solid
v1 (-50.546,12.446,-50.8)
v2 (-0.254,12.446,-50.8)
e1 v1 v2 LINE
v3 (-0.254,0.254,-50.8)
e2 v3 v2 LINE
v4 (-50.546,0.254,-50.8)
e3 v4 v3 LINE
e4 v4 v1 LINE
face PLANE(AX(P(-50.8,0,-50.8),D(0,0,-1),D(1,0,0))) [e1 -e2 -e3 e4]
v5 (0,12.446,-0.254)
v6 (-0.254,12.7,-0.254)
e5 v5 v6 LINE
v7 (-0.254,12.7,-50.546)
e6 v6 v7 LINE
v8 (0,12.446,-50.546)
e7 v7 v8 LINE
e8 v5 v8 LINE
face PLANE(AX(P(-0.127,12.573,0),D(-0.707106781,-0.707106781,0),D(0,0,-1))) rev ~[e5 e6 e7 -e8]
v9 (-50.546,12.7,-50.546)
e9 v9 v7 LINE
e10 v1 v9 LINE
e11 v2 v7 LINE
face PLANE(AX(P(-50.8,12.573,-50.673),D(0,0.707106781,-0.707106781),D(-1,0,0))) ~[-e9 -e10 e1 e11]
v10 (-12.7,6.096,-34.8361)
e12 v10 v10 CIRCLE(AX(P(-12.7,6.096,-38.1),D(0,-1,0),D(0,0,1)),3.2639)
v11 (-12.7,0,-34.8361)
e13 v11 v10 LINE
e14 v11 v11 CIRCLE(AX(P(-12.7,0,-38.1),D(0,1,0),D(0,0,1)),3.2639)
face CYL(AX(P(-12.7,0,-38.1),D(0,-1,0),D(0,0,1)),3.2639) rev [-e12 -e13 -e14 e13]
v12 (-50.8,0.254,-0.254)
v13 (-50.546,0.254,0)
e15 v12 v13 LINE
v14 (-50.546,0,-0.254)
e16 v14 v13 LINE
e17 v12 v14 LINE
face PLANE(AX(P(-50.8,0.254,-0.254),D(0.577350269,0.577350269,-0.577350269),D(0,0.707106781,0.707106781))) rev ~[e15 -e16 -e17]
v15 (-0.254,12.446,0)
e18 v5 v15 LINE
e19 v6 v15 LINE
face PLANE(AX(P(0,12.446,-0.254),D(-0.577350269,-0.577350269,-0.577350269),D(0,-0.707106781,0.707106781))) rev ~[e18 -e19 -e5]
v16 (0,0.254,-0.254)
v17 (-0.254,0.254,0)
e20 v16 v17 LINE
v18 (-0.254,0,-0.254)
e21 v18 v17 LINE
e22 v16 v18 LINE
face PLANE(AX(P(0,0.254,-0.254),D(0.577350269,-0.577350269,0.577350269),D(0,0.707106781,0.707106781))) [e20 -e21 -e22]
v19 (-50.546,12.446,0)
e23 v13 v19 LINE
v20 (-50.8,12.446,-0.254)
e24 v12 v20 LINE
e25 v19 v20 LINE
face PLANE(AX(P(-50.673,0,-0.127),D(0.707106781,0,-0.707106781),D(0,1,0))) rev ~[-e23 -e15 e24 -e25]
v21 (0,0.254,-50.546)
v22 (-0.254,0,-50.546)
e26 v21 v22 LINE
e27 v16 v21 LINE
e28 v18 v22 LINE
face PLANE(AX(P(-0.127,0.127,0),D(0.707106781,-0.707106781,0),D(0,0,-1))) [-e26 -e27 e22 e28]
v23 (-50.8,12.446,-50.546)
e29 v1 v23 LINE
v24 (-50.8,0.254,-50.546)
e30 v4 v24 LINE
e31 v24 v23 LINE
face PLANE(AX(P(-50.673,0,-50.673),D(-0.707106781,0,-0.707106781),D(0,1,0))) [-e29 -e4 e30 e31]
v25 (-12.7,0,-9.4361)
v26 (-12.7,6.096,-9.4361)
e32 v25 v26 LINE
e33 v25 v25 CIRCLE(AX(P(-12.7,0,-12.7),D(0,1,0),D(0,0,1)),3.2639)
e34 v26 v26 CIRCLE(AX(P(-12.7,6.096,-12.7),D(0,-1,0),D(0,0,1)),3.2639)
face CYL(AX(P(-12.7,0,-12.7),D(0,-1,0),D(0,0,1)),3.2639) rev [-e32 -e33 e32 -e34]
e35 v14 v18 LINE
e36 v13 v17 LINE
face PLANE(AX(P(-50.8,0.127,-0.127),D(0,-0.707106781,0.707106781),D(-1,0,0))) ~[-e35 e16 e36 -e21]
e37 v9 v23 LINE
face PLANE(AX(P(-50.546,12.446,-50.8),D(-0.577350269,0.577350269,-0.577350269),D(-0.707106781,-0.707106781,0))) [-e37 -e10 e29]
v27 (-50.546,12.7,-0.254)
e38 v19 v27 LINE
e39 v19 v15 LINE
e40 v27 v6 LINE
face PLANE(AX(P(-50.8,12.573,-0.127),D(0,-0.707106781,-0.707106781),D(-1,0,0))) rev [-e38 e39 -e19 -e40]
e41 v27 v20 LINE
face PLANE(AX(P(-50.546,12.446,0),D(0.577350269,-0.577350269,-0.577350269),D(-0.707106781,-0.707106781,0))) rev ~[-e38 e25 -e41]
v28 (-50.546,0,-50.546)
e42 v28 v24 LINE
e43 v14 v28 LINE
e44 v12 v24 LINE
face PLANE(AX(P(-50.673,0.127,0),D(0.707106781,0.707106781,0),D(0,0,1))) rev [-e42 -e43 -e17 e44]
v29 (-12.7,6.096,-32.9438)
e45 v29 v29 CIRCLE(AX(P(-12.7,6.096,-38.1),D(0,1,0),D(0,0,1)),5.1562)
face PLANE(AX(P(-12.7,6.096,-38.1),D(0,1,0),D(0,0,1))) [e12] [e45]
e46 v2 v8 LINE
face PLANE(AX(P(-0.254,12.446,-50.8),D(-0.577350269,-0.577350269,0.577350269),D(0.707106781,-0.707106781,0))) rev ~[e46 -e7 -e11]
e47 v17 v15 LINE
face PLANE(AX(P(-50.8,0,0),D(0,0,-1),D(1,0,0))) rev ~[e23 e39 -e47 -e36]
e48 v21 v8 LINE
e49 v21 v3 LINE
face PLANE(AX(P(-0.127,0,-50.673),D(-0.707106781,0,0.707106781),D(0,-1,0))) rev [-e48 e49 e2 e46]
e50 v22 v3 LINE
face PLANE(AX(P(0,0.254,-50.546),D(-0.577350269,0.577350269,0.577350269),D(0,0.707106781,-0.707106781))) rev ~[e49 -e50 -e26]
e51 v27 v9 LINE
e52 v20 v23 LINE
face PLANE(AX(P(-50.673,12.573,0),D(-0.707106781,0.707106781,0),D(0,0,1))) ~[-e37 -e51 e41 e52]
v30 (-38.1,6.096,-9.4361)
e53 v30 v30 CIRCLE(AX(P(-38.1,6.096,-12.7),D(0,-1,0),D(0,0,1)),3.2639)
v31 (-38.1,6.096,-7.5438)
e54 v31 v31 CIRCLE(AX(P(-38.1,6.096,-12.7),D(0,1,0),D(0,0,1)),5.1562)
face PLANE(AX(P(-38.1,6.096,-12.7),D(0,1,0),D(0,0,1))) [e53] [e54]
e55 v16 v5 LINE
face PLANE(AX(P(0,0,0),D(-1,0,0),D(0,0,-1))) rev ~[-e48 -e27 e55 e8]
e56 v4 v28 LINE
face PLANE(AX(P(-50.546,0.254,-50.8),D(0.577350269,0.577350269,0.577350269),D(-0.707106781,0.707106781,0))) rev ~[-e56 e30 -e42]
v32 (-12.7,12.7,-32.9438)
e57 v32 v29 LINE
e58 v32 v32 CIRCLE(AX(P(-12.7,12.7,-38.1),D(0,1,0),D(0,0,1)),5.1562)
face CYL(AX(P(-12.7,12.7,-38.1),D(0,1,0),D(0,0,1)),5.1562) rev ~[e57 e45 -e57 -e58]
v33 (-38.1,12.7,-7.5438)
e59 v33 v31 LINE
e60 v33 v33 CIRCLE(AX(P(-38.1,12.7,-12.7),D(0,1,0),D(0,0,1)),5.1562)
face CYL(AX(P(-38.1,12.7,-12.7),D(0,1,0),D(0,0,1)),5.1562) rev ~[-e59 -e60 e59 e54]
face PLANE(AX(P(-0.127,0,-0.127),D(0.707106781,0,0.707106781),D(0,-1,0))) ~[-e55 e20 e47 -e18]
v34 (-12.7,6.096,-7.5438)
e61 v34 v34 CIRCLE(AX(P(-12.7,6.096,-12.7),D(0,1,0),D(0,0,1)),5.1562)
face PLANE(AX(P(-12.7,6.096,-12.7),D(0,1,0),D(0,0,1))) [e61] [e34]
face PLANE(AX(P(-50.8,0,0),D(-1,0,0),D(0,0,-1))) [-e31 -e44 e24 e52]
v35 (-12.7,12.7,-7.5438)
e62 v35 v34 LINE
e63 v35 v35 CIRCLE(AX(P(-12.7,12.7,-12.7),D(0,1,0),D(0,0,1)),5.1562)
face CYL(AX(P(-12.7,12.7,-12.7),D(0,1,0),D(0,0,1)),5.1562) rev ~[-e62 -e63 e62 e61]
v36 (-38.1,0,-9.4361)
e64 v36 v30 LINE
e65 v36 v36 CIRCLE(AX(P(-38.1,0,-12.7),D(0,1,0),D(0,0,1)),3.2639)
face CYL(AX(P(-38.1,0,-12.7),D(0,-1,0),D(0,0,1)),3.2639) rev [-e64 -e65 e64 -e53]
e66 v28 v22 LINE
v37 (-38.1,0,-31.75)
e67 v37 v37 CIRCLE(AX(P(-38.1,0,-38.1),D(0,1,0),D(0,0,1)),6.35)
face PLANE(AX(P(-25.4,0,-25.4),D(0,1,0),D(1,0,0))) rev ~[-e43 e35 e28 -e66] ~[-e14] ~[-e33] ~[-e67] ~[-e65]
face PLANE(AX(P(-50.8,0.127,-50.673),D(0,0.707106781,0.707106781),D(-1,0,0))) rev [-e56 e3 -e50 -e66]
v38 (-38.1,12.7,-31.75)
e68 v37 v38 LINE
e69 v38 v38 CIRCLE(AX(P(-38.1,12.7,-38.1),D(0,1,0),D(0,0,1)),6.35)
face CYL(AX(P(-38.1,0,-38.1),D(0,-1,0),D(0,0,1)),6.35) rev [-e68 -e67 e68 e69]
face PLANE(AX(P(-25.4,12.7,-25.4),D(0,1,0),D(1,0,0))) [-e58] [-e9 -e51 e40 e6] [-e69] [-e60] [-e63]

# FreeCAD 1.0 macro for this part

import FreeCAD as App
import Part
import Sketcher
Q = App.Units.Quantity


def edges_at(feature, points):
    """Names of the edges that pass closest to the given points."""
    edges = feature.Shape.Edges
    near = lambda p: min(range(len(edges)), key=lambda i: edges[i].distToShape(Part.Vertex(*p))[0])
    return sorted({f"Edge{near(p) + 1}" for p in points})


def add_polygon(sketch, points):
    """Adds a closed chain of lines whose ends are joined by coincident constraints."""
    first, n = sketch.GeometryCount, len(points)
    for a, b in zip(points, points[1:] + points[:1]):
        sketch.addGeometry(Part.LineSegment(App.Vector(*a, 0), App.Vector(*b, 0)), False)
    for i in range(n):
        sketch.addConstraint(Sketcher.Constraint("Coincident", first + i, 2, first + (i + 1) % n, 1))

doc = App.newDocument("Part")
body = doc.addObject("PartDesign::Body", "Body")

sketch1 = body.newObject("Sketcher::SketchObject", "Sketch")
sketch1.AttachmentSupport = (doc.getObject("XZ_Plane"), [""])
sketch1.MapMode = "FlatFace"
add_polygon(sketch1, [(-50.8, -50.8), (-50.8, 0), (0, 0), (0, -50.8)])
sketch1.addGeometry(Part.Circle(App.Vector(-38.1, -12.7, 0), App.Vector(0, 0, 1), 3.3), False)
sketch1.addGeometry(Part.Circle(App.Vector(-12.7, -12.7, 0), App.Vector(0, 0, 1), 3.3), False)
sketch1.addGeometry(Part.Circle(App.Vector(-38.1, -38.1, 0), App.Vector(0, 0, 1), 6.3), False)
sketch1.addGeometry(Part.Circle(App.Vector(-12.7, -38.1, 0), App.Vector(0, 0, 1), 3.3), False)
sketch1.addConstraint([
    Sketcher.Constraint("Vertical", 0),
    Sketcher.Constraint("Horizontal", 1),
    Sketcher.Constraint("Vertical", 2),
    Sketcher.Constraint("Horizontal", 3),
    Sketcher.Constraint("Coincident", 1, 2, -1, 1),
    Sketcher.Constraint("Equal", 4, 5),
    Sketcher.Constraint("Equal", 5, 7),
    Sketcher.Constraint("Horizontal", 4, 3, 5, 3),
    Sketcher.Constraint("Horizontal", 6, 3, 7, 3),
    Sketcher.Constraint("Vertical", 4, 3, 6, 3),
    Sketcher.Constraint("Vertical", 5, 3, 7, 3),
    Sketcher.Constraint("Equal", 3, 0),
    Sketcher.Constraint("Diameter", 6, Q("0.5 in")),
    Sketcher.Constraint("DistanceX", 1, 1, 1, 2, Q("2 in")),
    Sketcher.Constraint("Diameter", 4, Q("0.257 in")),
    Sketcher.Constraint("DistanceX", 4, 3, 5, 3, Q("1 in")),
    Sketcher.Constraint("DistanceY", 6, 3, 4, 3, Q("1 in")),
    Sketcher.Constraint("DistanceX", 4, 3, -1, 1, Q("1.5 in")),
    Sketcher.Constraint("DistanceY", 4, 3, -1, 1, Q("0.5 in")),
])
pad1 = body.newObject("PartDesign::Pad", "Pad")
pad1.Profile = sketch1
pad1.Length = Q("0.5 in")
pad1.Reversed = True

sketch2 = body.newObject("Sketcher::SketchObject", "Sketch001")
sketch2.AttachmentSupport = (doc.getObject("XZ_Plane"), [""])
sketch2.MapMode = "FlatFace"
sketch2.AttachmentOffset = App.Placement(App.Vector(0, 0, -0.5 * 25.4), App.Rotation())
sketch2.addGeometry([
    Part.Circle(App.Vector(-13, -38, 0), App.Vector(0, 0, 1), 5),
    Part.Circle(App.Vector(-13, -13, 0), App.Vector(0, 0, 1), 5),
    Part.Circle(App.Vector(-38, -13, 0), App.Vector(0, 0, 1), 5),
], False)
sketch2.addConstraint([
    Sketcher.Constraint("Equal", 0, 1),
    Sketcher.Constraint("Equal", 1, 2),
    Sketcher.Constraint("Horizontal", 1, 3, 2, 3),
    Sketcher.Constraint("Vertical", 0, 3, 1, 3),
    Sketcher.Constraint("Diameter", 0, Q("0.406 in")),
    Sketcher.Constraint("DistanceY", 0, 3, 1, 3, Q("1 in")),
    Sketcher.Constraint("DistanceX", 2, 3, 1, 3, Q("1 in")),
    Sketcher.Constraint("DistanceX", 0, 3, -1, 1, Q("0.5 in")),
    Sketcher.Constraint("DistanceY", 0, 3, -1, 1, Q("1.5 in")),
])
pocket1 = body.newObject("PartDesign::Pocket", "Pocket")
pocket1.Profile = sketch2
pocket1.Length = Q("0.26 in")
pocket1.Reversed = True
doc.recompute()

chamfer = body.newObject("PartDesign::Chamfer", "Chamfer")
chamfer.Base = (pocket1, edges_at(pocket1, [
    (-50.8, 12.7, -25.4),
    (-25.4, 12.7, 0),
    (0, 12.7, -25.4),
    (-25.4, 0, 0),
    (-50.8, 0, -25.4),
    (-25.4, 0, -50.8),
    (0, 0, -25.4),
    (-25.4, 12.7, -50.8),
    (0, 6.35, 0),
    (-50.8, 6.35, 0),
    (-50.8, 6.35, -50.8),
    (0, 6.35, -50.8),
]))
chamfer.Size = Q("0.01 in")

doc.recompute()
